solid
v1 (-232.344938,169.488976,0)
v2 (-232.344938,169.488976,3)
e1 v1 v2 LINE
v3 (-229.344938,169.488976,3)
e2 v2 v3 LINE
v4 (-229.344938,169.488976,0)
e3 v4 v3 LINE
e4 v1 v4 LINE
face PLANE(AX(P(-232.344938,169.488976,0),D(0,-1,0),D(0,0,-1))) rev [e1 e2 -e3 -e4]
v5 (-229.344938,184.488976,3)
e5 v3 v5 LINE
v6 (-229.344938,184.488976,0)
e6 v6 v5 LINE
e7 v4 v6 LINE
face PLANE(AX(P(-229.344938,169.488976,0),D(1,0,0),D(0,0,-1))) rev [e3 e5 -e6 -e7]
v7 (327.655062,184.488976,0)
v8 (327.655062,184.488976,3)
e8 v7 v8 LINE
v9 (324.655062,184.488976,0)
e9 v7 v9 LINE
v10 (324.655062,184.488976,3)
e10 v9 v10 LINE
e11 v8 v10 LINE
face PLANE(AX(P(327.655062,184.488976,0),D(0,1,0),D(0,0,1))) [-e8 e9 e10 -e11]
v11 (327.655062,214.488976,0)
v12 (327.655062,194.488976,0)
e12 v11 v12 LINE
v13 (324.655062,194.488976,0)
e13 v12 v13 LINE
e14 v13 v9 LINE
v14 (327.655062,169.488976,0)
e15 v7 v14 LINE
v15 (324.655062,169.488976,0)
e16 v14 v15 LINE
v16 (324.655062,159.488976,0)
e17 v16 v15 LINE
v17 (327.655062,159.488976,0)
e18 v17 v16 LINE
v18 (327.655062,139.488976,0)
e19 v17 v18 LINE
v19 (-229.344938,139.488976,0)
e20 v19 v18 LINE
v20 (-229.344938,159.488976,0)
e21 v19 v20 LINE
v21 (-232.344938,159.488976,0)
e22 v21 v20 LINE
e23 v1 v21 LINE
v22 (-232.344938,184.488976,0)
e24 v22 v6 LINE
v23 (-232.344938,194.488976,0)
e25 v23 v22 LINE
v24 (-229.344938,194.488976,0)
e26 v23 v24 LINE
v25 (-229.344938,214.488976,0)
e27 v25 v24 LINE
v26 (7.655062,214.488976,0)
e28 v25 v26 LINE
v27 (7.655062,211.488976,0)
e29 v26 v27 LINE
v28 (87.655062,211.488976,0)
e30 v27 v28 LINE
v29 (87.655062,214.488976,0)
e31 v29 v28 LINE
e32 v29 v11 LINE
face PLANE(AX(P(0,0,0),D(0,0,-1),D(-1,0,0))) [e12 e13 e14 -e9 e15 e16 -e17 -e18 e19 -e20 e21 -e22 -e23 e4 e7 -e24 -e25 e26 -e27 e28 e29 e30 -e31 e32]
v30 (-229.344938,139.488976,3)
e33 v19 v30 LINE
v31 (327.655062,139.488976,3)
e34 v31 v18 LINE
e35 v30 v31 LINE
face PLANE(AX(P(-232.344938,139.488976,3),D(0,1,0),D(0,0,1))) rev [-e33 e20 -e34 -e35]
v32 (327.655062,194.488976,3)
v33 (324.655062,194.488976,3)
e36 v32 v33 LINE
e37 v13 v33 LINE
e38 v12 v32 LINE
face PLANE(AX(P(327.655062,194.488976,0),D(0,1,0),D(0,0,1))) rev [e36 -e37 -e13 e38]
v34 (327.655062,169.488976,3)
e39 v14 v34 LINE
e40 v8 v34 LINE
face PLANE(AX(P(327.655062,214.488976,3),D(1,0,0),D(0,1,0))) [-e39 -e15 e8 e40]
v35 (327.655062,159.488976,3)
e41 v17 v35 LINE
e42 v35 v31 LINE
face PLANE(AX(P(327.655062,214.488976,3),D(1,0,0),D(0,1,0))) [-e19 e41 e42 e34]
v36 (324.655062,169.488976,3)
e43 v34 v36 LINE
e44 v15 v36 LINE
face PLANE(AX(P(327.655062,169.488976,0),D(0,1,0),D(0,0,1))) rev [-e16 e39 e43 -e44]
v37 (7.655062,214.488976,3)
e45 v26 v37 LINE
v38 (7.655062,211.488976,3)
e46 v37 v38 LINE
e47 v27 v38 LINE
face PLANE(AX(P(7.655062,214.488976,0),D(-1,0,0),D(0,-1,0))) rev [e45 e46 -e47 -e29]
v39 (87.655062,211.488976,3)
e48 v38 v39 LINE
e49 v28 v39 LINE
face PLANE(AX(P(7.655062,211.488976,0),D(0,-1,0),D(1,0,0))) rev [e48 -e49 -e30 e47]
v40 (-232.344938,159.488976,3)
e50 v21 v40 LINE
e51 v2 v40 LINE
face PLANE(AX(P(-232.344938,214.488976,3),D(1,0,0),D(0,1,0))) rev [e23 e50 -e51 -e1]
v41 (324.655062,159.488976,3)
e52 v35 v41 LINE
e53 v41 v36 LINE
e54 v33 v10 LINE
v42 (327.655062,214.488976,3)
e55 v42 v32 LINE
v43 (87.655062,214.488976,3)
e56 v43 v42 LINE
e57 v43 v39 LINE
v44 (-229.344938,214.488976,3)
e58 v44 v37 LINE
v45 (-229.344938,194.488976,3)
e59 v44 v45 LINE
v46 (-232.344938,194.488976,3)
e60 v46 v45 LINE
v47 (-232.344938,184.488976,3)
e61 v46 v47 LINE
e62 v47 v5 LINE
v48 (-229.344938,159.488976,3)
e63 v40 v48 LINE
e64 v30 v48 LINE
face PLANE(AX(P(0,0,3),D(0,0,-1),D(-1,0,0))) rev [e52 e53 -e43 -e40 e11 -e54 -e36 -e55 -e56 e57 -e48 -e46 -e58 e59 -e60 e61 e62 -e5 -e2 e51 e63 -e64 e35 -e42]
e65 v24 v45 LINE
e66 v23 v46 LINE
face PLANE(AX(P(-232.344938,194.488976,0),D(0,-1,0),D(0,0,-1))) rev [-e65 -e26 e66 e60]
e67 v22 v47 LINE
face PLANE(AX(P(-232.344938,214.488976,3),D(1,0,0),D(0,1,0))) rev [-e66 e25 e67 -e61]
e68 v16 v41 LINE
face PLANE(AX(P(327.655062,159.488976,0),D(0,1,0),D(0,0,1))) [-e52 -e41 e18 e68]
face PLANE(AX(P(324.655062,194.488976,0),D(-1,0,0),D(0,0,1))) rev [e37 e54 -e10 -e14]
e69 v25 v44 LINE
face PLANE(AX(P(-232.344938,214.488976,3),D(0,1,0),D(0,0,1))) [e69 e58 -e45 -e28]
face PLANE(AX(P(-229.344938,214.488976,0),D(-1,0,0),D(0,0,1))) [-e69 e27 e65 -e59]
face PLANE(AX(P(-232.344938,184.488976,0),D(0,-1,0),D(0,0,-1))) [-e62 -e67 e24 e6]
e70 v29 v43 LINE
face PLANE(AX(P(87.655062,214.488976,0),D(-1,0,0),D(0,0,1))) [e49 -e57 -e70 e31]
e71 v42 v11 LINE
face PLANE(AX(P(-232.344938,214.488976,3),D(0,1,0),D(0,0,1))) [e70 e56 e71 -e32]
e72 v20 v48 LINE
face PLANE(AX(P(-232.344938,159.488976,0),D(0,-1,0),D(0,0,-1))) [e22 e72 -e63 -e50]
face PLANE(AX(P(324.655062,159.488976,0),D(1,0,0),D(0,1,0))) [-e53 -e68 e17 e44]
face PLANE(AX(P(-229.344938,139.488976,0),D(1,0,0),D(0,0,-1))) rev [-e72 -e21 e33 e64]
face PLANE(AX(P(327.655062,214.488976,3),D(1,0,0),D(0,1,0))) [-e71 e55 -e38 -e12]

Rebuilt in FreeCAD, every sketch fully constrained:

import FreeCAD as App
import Part
import Sketcher
from FreeCAD import Vector
Q = App.Units.Quantity


def add_polygon(sketch, points):
    """Adds a closed chain of lines whose ends are joined by coincident constraints."""
    first, n = sketch.GeometryCount, len(points)
    for a, b in zip(points, points[1:] + points[:1]):
        sketch.addGeometry(Part.LineSegment(App.Vector(*a, 0), App.Vector(*b, 0)), False)
    for i in range(n):
        sketch.addConstraint(Sketcher.Constraint("Coincident", first + i, 2, first + (i + 1) % n, 1))

doc = App.newDocument("Part")
body = doc.addObject("PartDesign::Body", "Body")

sketch1 = doc.addObject("Sketcher::SketchObject", "Sketch")
body.addObject(sketch1)
sketch1.AttachmentSupport = (doc.XY_Plane, [""])
sketch1.MapMode = "FlatFace"
add_polygon(sketch1, [(-232, 214), (-232, 139), (328, 139), (328, 214)])
sketch1.addConstraint([
    Sketcher.Constraint("Vertical", 0),
    Sketcher.Constraint("Horizontal", 1),
    Sketcher.Constraint("Vertical", 2),
    Sketcher.Constraint("Horizontal", 3),
    Sketcher.Constraint("DistanceX", 1, 1, 1, 2, Q("560 mm")),
    Sketcher.Constraint("DistanceY", 0, 2, 0, 1, Q("75 mm")),
    Sketcher.Constraint("DistanceX", 0, 2, -1, 1, Q("232.344938 mm")),
    Sketcher.Constraint("DistanceY", -1, 1, 0, 2, Q("139.488976 mm")),
])
pad1 = doc.addObject("PartDesign::Pad", "Pad")
body.addObject(pad1)
pad1.Profile = sketch1
pad1.Length = 3

sketch2 = doc.addObject("Sketcher::SketchObject", "Sketch001")
body.addObject(sketch2)
sketch2.AttachmentSupport = (doc.XY_Plane, [""])
sketch2.MapMode = "FlatFace"
sketch2.AttachmentOffset = App.Placement(Vector(0, 0, 3), App.Rotation())
add_polygon(sketch2, [(324.7, 194.5), (324.7, 184.5), (327.7, 184.5), (327.7, 194.5)])
add_polygon(sketch2, [(324.7, 169.5), (324.7, 159.5), (327.7, 159.5), (327.7, 169.5)])
sketch2.addConstraint([
    Sketcher.Constraint("Vertical", 0),
    Sketcher.Constraint("Horizontal", 1),
    Sketcher.Constraint("Vertical", 2),
    Sketcher.Constraint("Horizontal", 3),
    Sketcher.Constraint("Vertical", 4),
    Sketcher.Constraint("Horizontal", 5),
    Sketcher.Constraint("Vertical", 6),
    Sketcher.Constraint("Horizontal", 7),
    Sketcher.Constraint("Vertical", 3, 2, 4, 2),
    Sketcher.Constraint("Vertical", 2, 2, 5, 2),
    Sketcher.Constraint("Equal", 2, 4),
    Sketcher.Constraint("DistanceX", 1, 1, 1, 2, Q("3 mm")),
    Sketcher.Constraint("DistanceY", 0, 2, 0, 1, Q("10 mm")),
    Sketcher.Constraint("DistanceY", 4, 2, 0, 2, Q("25 mm")),
    Sketcher.Constraint("DistanceX", -1, 1, 0, 2, Q("324.655062 mm")),
    Sketcher.Constraint("DistanceY", -1, 1, 0, 2, Q("184.488976 mm")),
])
pocket1 = doc.addObject("PartDesign::Pocket", "Pocket")
body.addObject(pocket1)
pocket1.Profile = sketch2
pocket1.Length = 3

sketch3 = doc.addObject("Sketcher::SketchObject", "Sketch002")
body.addObject(sketch3)
sketch3.AttachmentSupport = (doc.XY_Plane, [""])
sketch3.MapMode = "FlatFace"
sketch3.AttachmentOffset = App.Placement(Vector(0, 0, 3), App.Rotation())
add_polygon(sketch3, [(-232.3, 214.5), (-232.3, 194.5), (-229.3, 194.5), (-229.3, 214.5)])
add_polygon(sketch3, [(-232.3, 159.5), (-232.3, 139.5), (-229.3, 139.5), (-229.3, 159.5)])
add_polygon(sketch3, [(-232.3, 184.5), (-232.3, 169.5), (-229.3, 169.5), (-229.3, 184.5)])
sketch3.addConstraint([
    Sketcher.Constraint("Vertical", 0),
    Sketcher.Constraint("Horizontal", 1),
    Sketcher.Constraint("Vertical", 2),
    Sketcher.Constraint("Horizontal", 3),
    Sketcher.Constraint("Vertical", 4),
    Sketcher.Constraint("Horizontal", 5),
    Sketcher.Constraint("Vertical", 6),
    Sketcher.Constraint("Horizontal", 7),
    Sketcher.Constraint("Vertical", 8),
    Sketcher.Constraint("Horizontal", 9),
    Sketcher.Constraint("Vertical", 10),
    Sketcher.Constraint("Horizontal", 11),
    Sketcher.Constraint("Vertical", 3, 2, 4, 2),
    Sketcher.Constraint("Vertical", 2, 2, 5, 2),
    Sketcher.Constraint("Vertical", 7, 2, 8, 2),
    Sketcher.Constraint("Vertical", 6, 2, 9, 2),
    Sketcher.Constraint("Equal", 2, 4),
    Sketcher.Constraint("DistanceX", 1, 1, 1, 2, Q("3 mm")),
    Sketcher.Constraint("DistanceY", 0, 2, 0, 1, Q("20 mm")),
    Sketcher.Constraint("DistanceY", 8, 2, 8, 1, Q("15 mm")),
    Sketcher.Constraint("DistanceY", 4, 2, 0, 2, Q("55 mm")),
    Sketcher.Constraint("DistanceY", 7, 2, 8, 2, Q("10 mm")),
    Sketcher.Constraint("DistanceX", 0, 2, -1, 1, Q("232.344938 mm")),
    Sketcher.Constraint("DistanceY", -1, 1, 0, 2, Q("194.488976 mm")),
])
pocket2 = doc.addObject("PartDesign::Pocket", "Pocket001")
body.addObject(pocket2)
pocket2.Profile = sketch3
pocket2.Length = 3

sketch4 = doc.addObject("Sketcher::SketchObject", "Sketch003")
body.addObject(sketch4)
sketch4.AttachmentSupport = (doc.XY_Plane, [""])
sketch4.MapMode = "FlatFace"
sketch4.AttachmentOffset = App.Placement(Vector(0, 0, 3), App.Rotation())
add_polygon(sketch4, [(7.7, 214.5), (7.7, 211.5), (87.7, 211.5), (87.7, 214.5)])
sketch4.addConstraint([
    Sketcher.Constraint("Vertical", 0),
    Sketcher.Constraint("Horizontal", 1),
    Sketcher.Constraint("Vertical", 2),
    Sketcher.Constraint("Horizontal", 3),
    Sketcher.Constraint("DistanceX", 1, 1, 1, 2, Q("80 mm")),
    Sketcher.Constraint("DistanceY", 0, 2, 0, 1, Q("3 mm")),
    Sketcher.Constraint("DistanceX", -1, 1, 0, 2, Q("7.655062 mm")),
    Sketcher.Constraint("DistanceY", -1, 1, 0, 2, Q("211.488976 mm")),
])
pocket3 = doc.addObject("PartDesign::Pocket", "Pocket002")
body.addObject(pocket3)
pocket3.Profile = sketch4
pocket3.Length = 3

doc.recompute()
